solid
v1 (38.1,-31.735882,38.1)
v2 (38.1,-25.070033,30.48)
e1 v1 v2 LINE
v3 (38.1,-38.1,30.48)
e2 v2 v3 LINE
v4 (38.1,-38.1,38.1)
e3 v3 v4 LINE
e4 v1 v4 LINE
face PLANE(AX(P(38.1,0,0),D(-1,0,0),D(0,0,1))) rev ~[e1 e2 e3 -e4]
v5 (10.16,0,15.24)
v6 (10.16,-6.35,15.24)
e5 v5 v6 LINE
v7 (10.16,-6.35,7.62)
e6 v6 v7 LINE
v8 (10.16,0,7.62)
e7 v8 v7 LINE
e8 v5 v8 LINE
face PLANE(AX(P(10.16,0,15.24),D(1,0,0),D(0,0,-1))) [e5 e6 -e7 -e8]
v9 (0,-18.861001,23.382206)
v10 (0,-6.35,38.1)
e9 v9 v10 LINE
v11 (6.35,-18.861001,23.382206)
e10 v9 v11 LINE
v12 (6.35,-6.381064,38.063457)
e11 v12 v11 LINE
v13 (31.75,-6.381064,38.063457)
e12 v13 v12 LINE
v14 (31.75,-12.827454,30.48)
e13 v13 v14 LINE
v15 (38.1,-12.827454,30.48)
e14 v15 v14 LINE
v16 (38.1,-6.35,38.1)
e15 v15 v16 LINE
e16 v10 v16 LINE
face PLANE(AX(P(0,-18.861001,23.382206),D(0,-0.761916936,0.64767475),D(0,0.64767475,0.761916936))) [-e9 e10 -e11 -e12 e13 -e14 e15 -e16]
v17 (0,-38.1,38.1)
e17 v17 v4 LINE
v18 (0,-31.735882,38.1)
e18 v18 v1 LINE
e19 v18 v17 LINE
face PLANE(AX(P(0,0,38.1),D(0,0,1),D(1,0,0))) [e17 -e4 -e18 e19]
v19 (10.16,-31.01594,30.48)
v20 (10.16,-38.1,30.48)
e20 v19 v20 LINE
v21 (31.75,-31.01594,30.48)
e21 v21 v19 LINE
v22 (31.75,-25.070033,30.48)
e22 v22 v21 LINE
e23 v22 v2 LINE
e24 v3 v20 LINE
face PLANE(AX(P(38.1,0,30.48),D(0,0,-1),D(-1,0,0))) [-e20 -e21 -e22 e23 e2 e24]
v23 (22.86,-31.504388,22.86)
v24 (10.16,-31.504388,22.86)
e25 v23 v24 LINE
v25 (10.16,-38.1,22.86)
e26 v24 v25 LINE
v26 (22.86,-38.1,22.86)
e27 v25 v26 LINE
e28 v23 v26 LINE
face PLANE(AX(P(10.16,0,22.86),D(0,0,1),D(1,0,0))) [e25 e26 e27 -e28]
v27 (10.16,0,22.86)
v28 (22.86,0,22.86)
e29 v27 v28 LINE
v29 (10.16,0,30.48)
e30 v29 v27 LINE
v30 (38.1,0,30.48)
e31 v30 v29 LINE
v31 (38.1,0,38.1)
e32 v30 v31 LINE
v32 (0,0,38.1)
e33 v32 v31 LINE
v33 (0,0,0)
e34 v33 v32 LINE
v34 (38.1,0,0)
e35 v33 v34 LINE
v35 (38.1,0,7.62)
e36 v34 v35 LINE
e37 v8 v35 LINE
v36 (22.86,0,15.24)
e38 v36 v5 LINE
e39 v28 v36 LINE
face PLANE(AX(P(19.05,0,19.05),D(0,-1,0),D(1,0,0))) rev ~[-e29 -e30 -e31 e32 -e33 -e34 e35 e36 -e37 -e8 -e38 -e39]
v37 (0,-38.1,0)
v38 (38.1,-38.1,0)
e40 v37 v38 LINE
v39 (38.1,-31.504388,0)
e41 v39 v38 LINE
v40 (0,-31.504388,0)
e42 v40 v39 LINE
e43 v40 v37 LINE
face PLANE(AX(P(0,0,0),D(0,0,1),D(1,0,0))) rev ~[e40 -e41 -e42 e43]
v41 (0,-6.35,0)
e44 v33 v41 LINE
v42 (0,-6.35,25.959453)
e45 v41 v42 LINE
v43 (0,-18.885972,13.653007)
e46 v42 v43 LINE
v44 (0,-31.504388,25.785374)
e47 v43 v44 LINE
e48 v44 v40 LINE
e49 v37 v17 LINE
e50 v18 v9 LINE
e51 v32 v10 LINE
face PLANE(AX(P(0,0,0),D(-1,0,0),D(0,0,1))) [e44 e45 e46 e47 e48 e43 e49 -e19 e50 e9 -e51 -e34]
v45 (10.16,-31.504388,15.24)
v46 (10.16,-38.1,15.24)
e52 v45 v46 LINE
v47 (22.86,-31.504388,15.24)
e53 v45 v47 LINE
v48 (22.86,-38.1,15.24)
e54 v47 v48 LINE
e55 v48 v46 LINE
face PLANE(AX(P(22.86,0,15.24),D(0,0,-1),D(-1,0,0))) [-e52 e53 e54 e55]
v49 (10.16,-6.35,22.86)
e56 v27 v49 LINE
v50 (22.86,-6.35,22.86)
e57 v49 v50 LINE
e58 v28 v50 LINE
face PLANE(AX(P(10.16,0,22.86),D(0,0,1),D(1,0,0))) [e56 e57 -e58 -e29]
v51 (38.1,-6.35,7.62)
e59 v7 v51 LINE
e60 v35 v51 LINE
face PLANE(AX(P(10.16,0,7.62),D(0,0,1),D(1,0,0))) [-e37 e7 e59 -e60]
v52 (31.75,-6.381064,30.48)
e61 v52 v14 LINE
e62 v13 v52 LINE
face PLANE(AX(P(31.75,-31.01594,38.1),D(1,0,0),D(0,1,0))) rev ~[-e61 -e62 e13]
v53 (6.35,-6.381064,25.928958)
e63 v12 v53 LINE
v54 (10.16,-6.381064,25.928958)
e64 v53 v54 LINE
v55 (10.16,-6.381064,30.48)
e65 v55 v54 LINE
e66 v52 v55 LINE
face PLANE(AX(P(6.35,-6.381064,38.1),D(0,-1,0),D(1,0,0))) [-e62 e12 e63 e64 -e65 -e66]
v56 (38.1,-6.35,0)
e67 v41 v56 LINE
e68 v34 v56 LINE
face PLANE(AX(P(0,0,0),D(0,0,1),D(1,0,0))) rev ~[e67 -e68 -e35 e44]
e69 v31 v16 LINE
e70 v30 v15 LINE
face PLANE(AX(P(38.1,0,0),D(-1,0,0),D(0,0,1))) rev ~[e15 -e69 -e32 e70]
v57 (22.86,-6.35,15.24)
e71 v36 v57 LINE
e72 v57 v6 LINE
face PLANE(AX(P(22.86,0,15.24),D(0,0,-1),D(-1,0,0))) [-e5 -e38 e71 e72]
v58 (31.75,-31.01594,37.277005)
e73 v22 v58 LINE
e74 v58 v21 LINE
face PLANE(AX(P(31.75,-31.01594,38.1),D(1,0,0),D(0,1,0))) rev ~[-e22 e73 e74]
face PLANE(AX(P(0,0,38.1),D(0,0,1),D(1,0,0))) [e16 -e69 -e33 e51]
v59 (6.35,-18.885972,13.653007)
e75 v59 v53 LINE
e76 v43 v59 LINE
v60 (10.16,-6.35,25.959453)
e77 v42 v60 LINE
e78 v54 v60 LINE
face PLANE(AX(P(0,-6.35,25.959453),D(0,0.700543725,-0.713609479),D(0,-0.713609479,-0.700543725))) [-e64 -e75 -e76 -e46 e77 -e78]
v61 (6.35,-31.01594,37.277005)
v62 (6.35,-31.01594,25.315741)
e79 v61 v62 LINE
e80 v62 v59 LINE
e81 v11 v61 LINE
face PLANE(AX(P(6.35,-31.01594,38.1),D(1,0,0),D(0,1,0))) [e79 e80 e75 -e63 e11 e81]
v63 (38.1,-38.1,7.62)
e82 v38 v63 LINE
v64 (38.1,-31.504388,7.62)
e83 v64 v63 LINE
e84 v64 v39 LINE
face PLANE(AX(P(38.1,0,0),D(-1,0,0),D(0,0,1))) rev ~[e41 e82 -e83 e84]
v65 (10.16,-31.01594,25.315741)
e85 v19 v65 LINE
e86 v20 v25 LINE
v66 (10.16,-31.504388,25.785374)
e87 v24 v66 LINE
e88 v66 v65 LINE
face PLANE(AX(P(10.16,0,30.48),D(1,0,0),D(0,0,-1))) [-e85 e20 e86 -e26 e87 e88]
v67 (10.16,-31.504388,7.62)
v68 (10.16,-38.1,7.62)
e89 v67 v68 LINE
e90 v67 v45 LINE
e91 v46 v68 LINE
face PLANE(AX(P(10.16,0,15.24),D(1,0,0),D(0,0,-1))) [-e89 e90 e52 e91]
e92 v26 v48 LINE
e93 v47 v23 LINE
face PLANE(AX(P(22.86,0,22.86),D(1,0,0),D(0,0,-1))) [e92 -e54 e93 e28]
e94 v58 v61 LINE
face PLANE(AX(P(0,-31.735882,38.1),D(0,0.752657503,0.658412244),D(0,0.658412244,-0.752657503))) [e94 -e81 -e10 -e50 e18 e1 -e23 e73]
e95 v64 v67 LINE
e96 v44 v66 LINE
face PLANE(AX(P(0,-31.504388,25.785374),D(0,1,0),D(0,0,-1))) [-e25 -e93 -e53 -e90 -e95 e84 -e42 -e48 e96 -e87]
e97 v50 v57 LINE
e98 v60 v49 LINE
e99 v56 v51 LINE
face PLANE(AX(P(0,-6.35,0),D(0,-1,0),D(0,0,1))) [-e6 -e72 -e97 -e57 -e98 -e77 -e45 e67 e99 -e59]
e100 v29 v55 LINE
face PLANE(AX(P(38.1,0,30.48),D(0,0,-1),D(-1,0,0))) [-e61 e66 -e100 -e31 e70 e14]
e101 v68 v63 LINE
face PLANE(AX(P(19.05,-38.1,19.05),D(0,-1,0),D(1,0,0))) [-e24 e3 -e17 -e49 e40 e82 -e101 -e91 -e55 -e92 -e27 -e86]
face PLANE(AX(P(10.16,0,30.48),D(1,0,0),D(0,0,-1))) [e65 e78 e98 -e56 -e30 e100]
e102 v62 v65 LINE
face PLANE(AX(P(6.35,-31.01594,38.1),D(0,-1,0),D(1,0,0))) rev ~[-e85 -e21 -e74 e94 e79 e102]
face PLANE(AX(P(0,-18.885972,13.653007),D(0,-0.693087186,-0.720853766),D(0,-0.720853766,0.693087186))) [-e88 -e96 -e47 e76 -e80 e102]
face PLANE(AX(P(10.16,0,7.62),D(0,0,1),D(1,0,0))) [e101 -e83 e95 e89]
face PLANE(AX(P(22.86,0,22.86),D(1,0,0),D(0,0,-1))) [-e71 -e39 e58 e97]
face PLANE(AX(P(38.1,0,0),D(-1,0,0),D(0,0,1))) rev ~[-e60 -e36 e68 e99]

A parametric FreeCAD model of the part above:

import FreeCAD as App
import Part
import Sketcher
Q = App.Units.Quantity

doc = App.newDocument("Part")
params = doc.addObject("Spreadsheet::Sheet", "Params")
for row, (alias, value) in enumerate([
    ("sketch1_width", "1.5 in"),
    ("pad1_length", "1.5 in"),
    ("sketch2_width", "1.1 in"),
    ("sketch2_width2", "0.5 in"),
    ("sketch2_height", "0.9 in"),
    ("pocket1_length", "1.5 in"),
    ("sketch3_width", "1 in"),
    ("pocket2_length", "1.5 in"),
    ("pocket3_length", "1.5 in"),
    ("pocket4_length", "1.5 in"),
], start=1):
    params.set(f"A{row}", alias)
    params.set(f"B{row}", "=" + value)
    params.setAlias(f"B{row}", alias)

body = doc.addObject("PartDesign::Body", "Body")

# Sketch on XZ plane
sketch1 = doc.addObject("Sketcher::SketchObject", "Sketch")
body.addObject(sketch1)
sketch1.AttachmentSupport = (doc.XZ_Plane, [""])
sketch1.MapMode = "FlatFace"
sketch1.addGeometry([
    Part.LineSegment(App.Vector(0, 38, 0), App.Vector(0, 0, 0)),
    Part.LineSegment(App.Vector(0, 0, 0), App.Vector(38, 0, 0)),
    Part.LineSegment(App.Vector(38, 0, 0), App.Vector(38, 38, 0)),
    Part.LineSegment(App.Vector(38, 38, 0), App.Vector(0, 38, 0)),
], False)
sketch1.addConstraint([
    Sketcher.Constraint("Coincident", 0, 2, 1, 1),
    Sketcher.Constraint("Coincident", 1, 2, 2, 1),
    Sketcher.Constraint("Coincident", 2, 2, 3, 1),
    Sketcher.Constraint("Coincident", 3, 2, 0, 1),
    Sketcher.Constraint("Vertical", 0),
    Sketcher.Constraint("Horizontal", 1),
    Sketcher.Constraint("Vertical", 2),
    Sketcher.Constraint("Horizontal", 3),
    Sketcher.Constraint("Coincident", 0, 2, -1, 1),
    Sketcher.Constraint("Equal", 3, 0),
    Sketcher.Constraint("DistanceX", 1, 1, 1, 2, Q("1.5 in")),
])
sketch1.setExpression("Constraints[10]", "Params.sketch1_width")
pad1 = doc.addObject("PartDesign::Pad", "Pad")
body.addObject(pad1)
pad1.Profile = sketch1
pad1.setExpression("Length", "Params.pad1_length")

# Sketch on XZ plane
sketch2 = doc.addObject("Sketcher::SketchObject", "Sketch001")
body.addObject(sketch2)
sketch2.AttachmentSupport = (doc.XZ_Plane, [""])
sketch2.MapMode = "FlatFace"
sketch2.addGeometry([
    Part.LineSegment(App.Vector(38, 8, 0), App.Vector(38, 30, 0)),  # 0
    Part.LineSegment(App.Vector(38, 30, 0), App.Vector(10, 30, 0)),  # 1
    Part.LineSegment(App.Vector(10, 30, 0), App.Vector(10, 23, 0)),  # 2
    Part.LineSegment(App.Vector(10, 23, 0), App.Vector(23, 23, 0)),  # 3
    Part.LineSegment(App.Vector(23, 23, 0), App.Vector(23, 15, 0)),  # 4
    Part.LineSegment(App.Vector(23, 15, 0), App.Vector(10, 15, 0)),  # 5
    Part.LineSegment(App.Vector(10, 15, 0), App.Vector(10, 8, 0)),  # 6
    Part.LineSegment(App.Vector(10, 8, 0), App.Vector(38, 8, 0)),  # 7
], False)
sketch2.addConstraint([
    Sketcher.Constraint("Coincident", 0, 2, 1, 1),
    Sketcher.Constraint("Coincident", 1, 2, 2, 1),
    Sketcher.Constraint("Coincident", 2, 2, 3, 1),
    Sketcher.Constraint("Coincident", 3, 2, 4, 1),
    Sketcher.Constraint("Coincident", 4, 2, 5, 1),
    Sketcher.Constraint("Coincident", 5, 2, 6, 1),
    Sketcher.Constraint("Coincident", 6, 2, 7, 1),
    Sketcher.Constraint("Coincident", 7, 2, 0, 1),
    Sketcher.Constraint("Vertical", 0),
    Sketcher.Constraint("Horizontal", 1),
    Sketcher.Constraint("Vertical", 2),
    Sketcher.Constraint("Horizontal", 3),
    Sketcher.Constraint("Vertical", 4),
    Sketcher.Constraint("Horizontal", 5),
    Sketcher.Constraint("Vertical", 6),
    Sketcher.Constraint("Horizontal", 7),
    Sketcher.Constraint("Vertical", 2, 2, 5, 2),
    Sketcher.Constraint("Equal", 2, 4),
    Sketcher.Constraint("Equal", 4, 6),
    Sketcher.Constraint("DistanceX", 1, 2, 1, 1, Q("1.1 in")),
    Sketcher.Constraint("DistanceX", 3, 1, 3, 2, Q("0.5 in")),
    Sketcher.Constraint("DistanceY", 0, 1, 0, 2, Q("0.9 in")),
    Sketcher.Constraint("DistanceX", -1, 1, 0, 2, Q("1.5 in")),
    Sketcher.Constraint("DistanceY", -1, 1, 0, 2, Q("1.2 in")),
])
sketch2.setExpression("Constraints[19]", "Params.sketch2_width")
sketch2.setExpression("Constraints[20]", "Params.sketch2_width2")
sketch2.setExpression("Constraints[21]", "Params.sketch2_height")
pocket1 = doc.addObject("PartDesign::Pocket", "Pocket")
body.addObject(pocket1)
pocket1.Profile = sketch2
pocket1.setExpression("Length", "Params.pocket1_length")
pocket1.Reversed = True

# Sketch on XY plane
sketch3 = doc.addObject("Sketcher::SketchObject", "Sketch002")
body.addObject(sketch3)
sketch3.AttachmentSupport = (doc.XY_Plane, [""])
sketch3.MapMode = "FlatFace"
sketch3.AttachmentOffset = App.Placement(App.Vector(0, 0, 1.5 * 25.4), App.Rotation())
sketch3.addGeometry([
    Part.LineSegment(App.Vector(6, -6, 0), App.Vector(6, -31, 0)),
    Part.LineSegment(App.Vector(6, -31, 0), App.Vector(32, -31, 0)),
    Part.LineSegment(App.Vector(32, -31, 0), App.Vector(32, -6, 0)),
    Part.LineSegment(App.Vector(32, -6, 0), App.Vector(6, -6, 0)),
], False)
sketch3.addConstraint([
    Sketcher.Constraint("Coincident", 0, 2, 1, 1),
    Sketcher.Constraint("Coincident", 1, 2, 2, 1),
    Sketcher.Constraint("Coincident", 2, 2, 3, 1),
    Sketcher.Constraint("Coincident", 3, 2, 0, 1),
    Sketcher.Constraint("Vertical", 0),
    Sketcher.Constraint("Horizontal", 1),
    Sketcher.Constraint("Vertical", 2),
    Sketcher.Constraint("Horizontal", 3),
    Sketcher.Constraint("DistanceX", 1, 1, 1, 2, Q("1 in")),
    Sketcher.Constraint("DistanceX", -1, 1, 0, 2, Q("0.25 in")),
    Sketcher.Constraint("DistanceY", 0, 2, -1, 1, Q("1.2211 in")),
    Sketcher.Constraint("DistanceY", 0, 2, 0, 1, Q("24.634876 mm")),
])
sketch3.setExpression("Constraints[8]", "Params.sketch3_width")
pocket2 = doc.addObject("PartDesign::Pocket", "Pocket001")
body.addObject(pocket2)
pocket2.Profile = sketch3
pocket2.setExpression("Length", "Params.pocket2_length")

# Sketch on YZ plane
sketch4 = doc.addObject("Sketcher::SketchObject", "Sketch003")
body.addObject(sketch4)
sketch4.AttachmentSupport = (doc.YZ_Plane, [""])
sketch4.MapMode = "FlatFace"
sketch4.addGeometry([
    Part.LineSegment(App.Vector(-19, 23, 0), App.Vector(-6, 38, 0)),
    Part.LineSegment(App.Vector(-6, 38, 0), App.Vector(-32, 38, 0)),
    Part.LineSegment(App.Vector(-32, 38, 0), App.Vector(-19, 23, 0)),
], False)
sketch4.addConstraint([
    Sketcher.Constraint("Coincident", 0, 2, 1, 1),
    Sketcher.Constraint("Coincident", 1, 2, 2, 1),
    Sketcher.Constraint("Coincident", 2, 2, 0, 1),
    Sketcher.Constraint("Horizontal", 1),
    Sketcher.Constraint("DistanceY", -1, 1, 0, 2, Q("1.5 in")),
    Sketcher.Constraint("DistanceX", 0, 2, -1, 1, Q("0.25 in")),
    Sketcher.Constraint("DistanceX", 2, 2, -1, 1, Q("18.861001 mm")),
    Sketcher.Constraint("DistanceX", 1, 2, 1, 1, Q("25.385882 mm")),
    Sketcher.Constraint("Distance", 0, Q("19.316796 mm")),
])
pocket3 = doc.addObject("PartDesign::Pocket", "Pocket002")
body.addObject(pocket3)
pocket3.Profile = sketch4
pocket3.setExpression("Length", "Params.pocket3_length")
pocket3.Reversed = True

# Sketch on YZ plane
sketch5 = doc.addObject("Sketcher::SketchObject", "Sketch004")
body.addObject(sketch5)
sketch5.AttachmentSupport = (doc.YZ_Plane, [""])
sketch5.MapMode = "FlatFace"
sketch5.addGeometry([
    Part.LineSegment(App.Vector(-32, 0, 0), App.Vector(-6, 0, 0)),  # 0
    Part.LineSegment(App.Vector(-6, 0, 0), App.Vector(-6, 26, 0)),  # 1
    Part.LineSegment(App.Vector(-6, 26, 0), App.Vector(-19, 14, 0)),  # 2
    Part.LineSegment(App.Vector(-19, 14, 0), App.Vector(-32, 26, 0)),  # 3
    Part.LineSegment(App.Vector(-32, 26, 0), App.Vector(-32, 0, 0)),  # 4
], False)
sketch5.addConstraint([
    Sketcher.Constraint("Coincident", 0, 2, 1, 1),
    Sketcher.Constraint("Coincident", 1, 2, 2, 1),
    Sketcher.Constraint("Coincident", 2, 2, 3, 1),
    Sketcher.Constraint("Coincident", 3, 2, 4, 1),
    Sketcher.Constraint("Coincident", 4, 2, 0, 1),
    Sketcher.Constraint("Horizontal", 0),
    Sketcher.Constraint("Vertical", 1),
    Sketcher.Constraint("Vertical", 4),
    Sketcher.Constraint("PointOnObject", 0, 2, -1),
    Sketcher.Constraint("DistanceX", 0, 2, -1, 1, Q("0.25 in")),
    Sketcher.Constraint("Distance", 2, Q("17.566992 mm")),
    Sketcher.Constraint("Distance", 3, Q("17.504821 mm")),
    Sketcher.Constraint("DistanceX", 0, 1, 0, 2, Q("25.154388 mm")),
    Sketcher.Constraint("DistanceY", 1, 1, 1, 2, Q("25.959453 mm")),
    Sketcher.Constraint("DistanceY", 4, 2, 4, 1, Q("25.785374 mm")),
])
pocket4 = doc.addObject("PartDesign::Pocket", "Pocket003")
body.addObject(pocket4)
pocket4.Profile = sketch5
pocket4.setExpression("Length", "Params.pocket4_length")
pocket4.Reversed = True

doc.recompute()
